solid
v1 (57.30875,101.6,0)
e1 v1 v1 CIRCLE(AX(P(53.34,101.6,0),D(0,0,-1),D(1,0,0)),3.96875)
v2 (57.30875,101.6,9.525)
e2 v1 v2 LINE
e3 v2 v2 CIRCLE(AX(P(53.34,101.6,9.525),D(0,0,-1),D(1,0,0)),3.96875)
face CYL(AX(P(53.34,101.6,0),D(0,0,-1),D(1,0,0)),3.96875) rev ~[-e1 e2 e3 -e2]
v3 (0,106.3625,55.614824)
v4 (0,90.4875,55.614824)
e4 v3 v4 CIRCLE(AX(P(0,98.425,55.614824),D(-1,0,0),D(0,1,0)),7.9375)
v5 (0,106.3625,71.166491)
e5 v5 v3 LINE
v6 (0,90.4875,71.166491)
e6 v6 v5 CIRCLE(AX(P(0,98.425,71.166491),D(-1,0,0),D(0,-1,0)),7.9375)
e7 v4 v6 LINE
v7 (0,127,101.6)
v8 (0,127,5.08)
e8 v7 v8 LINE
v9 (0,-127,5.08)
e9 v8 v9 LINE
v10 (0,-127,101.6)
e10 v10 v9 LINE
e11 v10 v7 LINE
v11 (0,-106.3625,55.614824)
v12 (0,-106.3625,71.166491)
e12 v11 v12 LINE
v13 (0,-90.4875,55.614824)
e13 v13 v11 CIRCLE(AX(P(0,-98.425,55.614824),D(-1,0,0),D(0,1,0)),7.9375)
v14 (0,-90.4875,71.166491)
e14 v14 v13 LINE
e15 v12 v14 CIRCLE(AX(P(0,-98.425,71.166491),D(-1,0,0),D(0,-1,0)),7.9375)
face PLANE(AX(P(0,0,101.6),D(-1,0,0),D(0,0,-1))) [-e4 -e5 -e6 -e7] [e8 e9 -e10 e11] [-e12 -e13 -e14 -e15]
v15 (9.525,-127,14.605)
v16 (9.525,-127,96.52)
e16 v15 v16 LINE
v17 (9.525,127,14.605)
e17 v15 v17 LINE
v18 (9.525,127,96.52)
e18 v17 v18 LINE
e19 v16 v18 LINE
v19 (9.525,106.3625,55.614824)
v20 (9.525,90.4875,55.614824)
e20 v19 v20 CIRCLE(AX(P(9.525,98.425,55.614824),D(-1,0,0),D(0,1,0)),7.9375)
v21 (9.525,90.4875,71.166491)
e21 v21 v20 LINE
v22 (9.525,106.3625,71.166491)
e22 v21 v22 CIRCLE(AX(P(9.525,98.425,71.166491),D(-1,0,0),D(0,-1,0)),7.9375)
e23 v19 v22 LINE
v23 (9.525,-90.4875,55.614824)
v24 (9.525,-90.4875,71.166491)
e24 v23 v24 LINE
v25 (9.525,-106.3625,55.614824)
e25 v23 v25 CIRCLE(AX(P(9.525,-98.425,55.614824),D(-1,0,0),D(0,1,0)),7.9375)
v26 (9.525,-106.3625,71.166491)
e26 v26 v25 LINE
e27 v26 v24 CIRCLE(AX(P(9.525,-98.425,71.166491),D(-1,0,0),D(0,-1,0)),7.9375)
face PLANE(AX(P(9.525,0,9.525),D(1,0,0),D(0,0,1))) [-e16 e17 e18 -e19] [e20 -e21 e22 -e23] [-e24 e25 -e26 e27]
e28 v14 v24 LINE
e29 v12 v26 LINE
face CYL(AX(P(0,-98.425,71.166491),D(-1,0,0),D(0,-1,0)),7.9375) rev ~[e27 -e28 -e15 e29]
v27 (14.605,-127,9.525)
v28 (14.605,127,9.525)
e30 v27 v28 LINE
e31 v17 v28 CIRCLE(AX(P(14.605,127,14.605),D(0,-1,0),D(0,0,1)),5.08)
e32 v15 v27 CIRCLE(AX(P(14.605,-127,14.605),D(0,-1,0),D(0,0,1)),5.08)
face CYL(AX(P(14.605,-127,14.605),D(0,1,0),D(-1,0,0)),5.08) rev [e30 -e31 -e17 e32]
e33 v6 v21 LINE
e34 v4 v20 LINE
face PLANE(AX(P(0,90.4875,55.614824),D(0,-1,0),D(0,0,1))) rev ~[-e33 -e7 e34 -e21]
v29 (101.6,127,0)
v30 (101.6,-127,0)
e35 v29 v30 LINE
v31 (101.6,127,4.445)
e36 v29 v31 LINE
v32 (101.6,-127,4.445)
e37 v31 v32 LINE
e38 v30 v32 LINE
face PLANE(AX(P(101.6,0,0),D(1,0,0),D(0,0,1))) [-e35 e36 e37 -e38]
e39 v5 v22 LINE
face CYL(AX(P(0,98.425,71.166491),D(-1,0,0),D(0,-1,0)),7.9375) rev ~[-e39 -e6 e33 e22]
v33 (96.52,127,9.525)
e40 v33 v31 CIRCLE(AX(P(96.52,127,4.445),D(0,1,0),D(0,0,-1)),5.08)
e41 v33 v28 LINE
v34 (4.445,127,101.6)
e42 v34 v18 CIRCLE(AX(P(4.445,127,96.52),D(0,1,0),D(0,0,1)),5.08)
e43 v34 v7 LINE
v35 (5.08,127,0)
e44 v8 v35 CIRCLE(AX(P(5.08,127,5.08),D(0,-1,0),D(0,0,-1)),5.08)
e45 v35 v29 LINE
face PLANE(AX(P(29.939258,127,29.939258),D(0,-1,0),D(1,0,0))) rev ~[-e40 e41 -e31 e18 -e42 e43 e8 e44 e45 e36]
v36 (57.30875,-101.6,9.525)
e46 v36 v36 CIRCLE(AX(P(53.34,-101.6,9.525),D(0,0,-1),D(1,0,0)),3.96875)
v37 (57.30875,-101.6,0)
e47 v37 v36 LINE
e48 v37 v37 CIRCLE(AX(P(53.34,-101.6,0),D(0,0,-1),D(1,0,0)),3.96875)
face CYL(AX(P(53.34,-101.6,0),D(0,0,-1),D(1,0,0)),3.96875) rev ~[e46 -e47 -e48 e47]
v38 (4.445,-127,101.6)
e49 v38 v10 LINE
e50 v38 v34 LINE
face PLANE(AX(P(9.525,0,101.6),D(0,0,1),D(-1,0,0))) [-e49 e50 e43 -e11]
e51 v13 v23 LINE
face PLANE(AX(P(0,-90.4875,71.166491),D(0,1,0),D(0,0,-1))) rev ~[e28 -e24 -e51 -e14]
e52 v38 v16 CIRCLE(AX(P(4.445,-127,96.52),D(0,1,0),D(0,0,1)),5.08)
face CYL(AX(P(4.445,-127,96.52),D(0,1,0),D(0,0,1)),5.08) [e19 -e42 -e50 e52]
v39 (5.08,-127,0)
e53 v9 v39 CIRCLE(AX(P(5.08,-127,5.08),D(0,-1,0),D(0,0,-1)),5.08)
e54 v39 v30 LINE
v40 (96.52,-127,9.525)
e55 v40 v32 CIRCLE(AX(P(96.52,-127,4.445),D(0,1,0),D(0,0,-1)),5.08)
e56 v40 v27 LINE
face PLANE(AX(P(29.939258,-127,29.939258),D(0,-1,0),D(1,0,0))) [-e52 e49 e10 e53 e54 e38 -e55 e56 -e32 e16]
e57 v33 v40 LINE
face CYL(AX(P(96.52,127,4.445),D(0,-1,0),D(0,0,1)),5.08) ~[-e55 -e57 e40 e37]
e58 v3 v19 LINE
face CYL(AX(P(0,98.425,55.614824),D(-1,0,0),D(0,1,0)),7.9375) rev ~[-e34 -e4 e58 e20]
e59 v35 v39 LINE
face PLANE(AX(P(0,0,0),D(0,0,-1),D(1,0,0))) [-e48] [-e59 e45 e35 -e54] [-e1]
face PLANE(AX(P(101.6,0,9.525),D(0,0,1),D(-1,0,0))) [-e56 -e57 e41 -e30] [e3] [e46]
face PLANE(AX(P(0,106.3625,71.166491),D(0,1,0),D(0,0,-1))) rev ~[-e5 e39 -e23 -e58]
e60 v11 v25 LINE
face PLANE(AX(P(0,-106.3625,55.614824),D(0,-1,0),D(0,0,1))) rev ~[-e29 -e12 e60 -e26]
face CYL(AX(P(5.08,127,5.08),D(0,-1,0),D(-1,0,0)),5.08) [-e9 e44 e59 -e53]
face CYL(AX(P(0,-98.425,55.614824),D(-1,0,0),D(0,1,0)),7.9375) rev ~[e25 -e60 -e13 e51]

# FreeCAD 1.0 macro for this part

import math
import FreeCAD as App
import Part
import Sketcher
Q = App.Units.Quantity


def edges_at(feature, points):
    """Names of the edges that pass closest to the given points."""
    edges = feature.Shape.Edges
    near = lambda p: min(range(len(edges)), key=lambda i: edges[i].distToShape(Part.Vertex(*p))[0])
    return sorted({f"Edge{near(p) + 1}" for p in points})

doc = App.newDocument("Part")
body = doc.addObject("PartDesign::Body", "Body")

# Sketch on XZ plane
sketch1 = body.newObject("Sketcher::SketchObject", "Sketch")
sketch1.AttachmentSupport = (doc.getObject("XZ_Plane"), [""])
sketch1.MapMode = "FlatFace"
sketch1.addGeometry(Part.LineSegment(App.Vector(0, 102, 0), App.Vector(0, 0, 0)), False)
sketch1.addGeometry(Part.LineSegment(App.Vector(0, 0, 0), App.Vector(102, 0, 0)), False)
sketch1.addGeometry(Part.LineSegment(App.Vector(102, 0, 0), App.Vector(102, 10, 0)), False)
sketch1.addGeometry(Part.LineSegment(App.Vector(102, 10, 0), App.Vector(10, 10, 0)), False)
sketch1.addGeometry(Part.LineSegment(App.Vector(10, 10, 0), App.Vector(10, 102, 0)), False)
sketch1.addGeometry(Part.LineSegment(App.Vector(10, 102, 0), App.Vector(0, 102, 0)), False)
sketch1.addConstraint(Sketcher.Constraint("Coincident", 0, 2, 1, 1))
sketch1.addConstraint(Sketcher.Constraint("Coincident", 1, 2, 2, 1))
sketch1.addConstraint(Sketcher.Constraint("Coincident", 2, 2, 3, 1))
sketch1.addConstraint(Sketcher.Constraint("Coincident", 3, 2, 4, 1))
sketch1.addConstraint(Sketcher.Constraint("Coincident", 4, 2, 5, 1))
sketch1.addConstraint(Sketcher.Constraint("Coincident", 5, 2, 0, 1))
sketch1.addConstraint(Sketcher.Constraint("Vertical", 0))
sketch1.addConstraint(Sketcher.Constraint("Horizontal", 1))
sketch1.addConstraint(Sketcher.Constraint("Vertical", 2))
sketch1.addConstraint(Sketcher.Constraint("Horizontal", 3))
sketch1.addConstraint(Sketcher.Constraint("Vertical", 4))
sketch1.addConstraint(Sketcher.Constraint("Horizontal", 5))
sketch1.addConstraint(Sketcher.Constraint("Coincident", 0, 2, -1, 1))
sketch1.addConstraint(Sketcher.Constraint("Equal", 1, 0))
sketch1.addConstraint(Sketcher.Constraint("Equal", 5, 2))
sketch1.addConstraint(Sketcher.Constraint("DistanceX", 1, 1, 1, 2, Q("4 in")))
sketch1.addConstraint(Sketcher.Constraint("DistanceX", 3, 2, 3, 1, Q("3.625 in")))
pad1 = body.newObject("PartDesign::Pad", "Pad")
pad1.Profile = sketch1
pad1.Length = Q("10 in")
pad1.Midplane = True
doc.recompute()

fillet = body.newObject("PartDesign::Fillet", "Fillet")
fillet.Base = (pad1, edges_at(pad1, [
    (9.525, 0, 9.525),
    (0, 0, 0),
    (9.525, 0, 101.6),
    (101.6, 0, 9.525),
]))
fillet.Radius = Q("0.2 in")

# Sketch on YZ plane
sketch2 = body.newObject("Sketcher::SketchObject", "Sketch001")
sketch2.AttachmentSupport = (doc.getObject("YZ_Plane"), [""])
sketch2.MapMode = "FlatFace"
sketch2.addGeometry(Part.LineSegment(App.Vector(90, 56, 0), App.Vector(90, 71, 0)), False)
sketch2.addGeometry(Part.ArcOfCircle(Part.Circle(App.Vector(98, 71, 0), App.Vector(0, 0, 1), 8), math.radians(0), math.radians(180)), False)
sketch2.addGeometry(Part.LineSegment(App.Vector(106, 71, 0), App.Vector(106, 56, 0)), False)
sketch2.addGeometry(Part.ArcOfCircle(Part.Circle(App.Vector(98, 56, 0), App.Vector(0, 0, 1), 8), math.radians(180), math.radians(360)), False)
sketch2.addGeometry(Part.ArcOfCircle(Part.Circle(App.Vector(-98, 56, 0), App.Vector(0, 0, 1), 8), math.radians(180), math.radians(360)), False)
sketch2.addGeometry(Part.LineSegment(App.Vector(-106, 56, 0), App.Vector(-106, 71, 0)), False)
sketch2.addGeometry(Part.ArcOfCircle(Part.Circle(App.Vector(-98, 71, 0), App.Vector(0, 0, 1), 8), math.radians(0), math.radians(180)), False)
sketch2.addGeometry(Part.LineSegment(App.Vector(-90, 71, 0), App.Vector(-90, 56, 0)), False)
sketch2.addConstraint(Sketcher.Constraint("Tangent", 0, 2, 1, 2))
sketch2.addConstraint(Sketcher.Constraint("Tangent", 1, 1, 2, 1))
sketch2.addConstraint(Sketcher.Constraint("Tangent", 2, 2, 3, 2))
sketch2.addConstraint(Sketcher.Constraint("Tangent", 3, 1, 0, 1))
sketch2.addConstraint(Sketcher.Constraint("Tangent", 4, 1, 5, 1))
sketch2.addConstraint(Sketcher.Constraint("Tangent", 5, 2, 6, 2))
sketch2.addConstraint(Sketcher.Constraint("Tangent", 6, 1, 7, 1))
sketch2.addConstraint(Sketcher.Constraint("Tangent", 7, 2, 4, 2))
sketch2.addConstraint(Sketcher.Constraint("Vertical", 0))
sketch2.addConstraint(Sketcher.Constraint("Vertical", 2))
sketch2.addConstraint(Sketcher.Constraint("Vertical", 5))
sketch2.addConstraint(Sketcher.Constraint("Vertical", 7))
sketch2.addConstraint(Sketcher.Constraint("Equal", 3, 4))
sketch2.addConstraint(Sketcher.Constraint("Symmetric", 3, 3, 4, 3, -2))
sketch2.addConstraint(Sketcher.Constraint("Horizontal", 1, 3, 6, 3))
sketch2.addConstraint(Sketcher.Constraint("Radius", 1, Q("0.3125 in")))
sketch2.addConstraint(Sketcher.Constraint("DistanceX", 4, 3, 3, 3, Q("7.75 in")))
sketch2.addConstraint(Sketcher.Constraint("DistanceY", 0, 1, 0, 2, 15.551667))
sketch2.addConstraint(Sketcher.Constraint("DistanceY", -1, 1, 1, 3, 71.166491))
pocket1 = body.newObject("PartDesign::Pocket", "Pocket")
pocket1.Profile = sketch2
pocket1.Length = Q("1 in")
pocket1.Reversed = True

# Sketch on XY plane
sketch3 = body.newObject("Sketcher::SketchObject", "Sketch002")
sketch3.AttachmentSupport = (doc.getObject("XY_Plane"), [""])
sketch3.MapMode = "FlatFace"
sketch3.addGeometry(Part.Circle(App.Vector(53.3, -101.6, 0), App.Vector(0, 0, 1), 4), False)
sketch3.addGeometry(Part.Circle(App.Vector(53.3, 101.6, 0), App.Vector(0, 0, 1), 4), False)
sketch3.addConstraint(Sketcher.Constraint("Equal", 0, 1))
sketch3.addConstraint(Sketcher.Constraint("Symmetric", 0, 3, 1, 3, -1))
sketch3.addConstraint(Sketcher.Constraint("Diameter", 0, Q("0.3125 in")))
sketch3.addConstraint(Sketcher.Constraint("DistanceY", 0, 3, -1, 1, Q("4 in")))
sketch3.addConstraint(Sketcher.Constraint("DistanceX", -1, 1, 0, 3, Q("2.1 in")))
pocket2 = body.newObject("PartDesign::Pocket", "Pocket001")
pocket2.Profile = sketch3
pocket2.Length = Q("1 in")
pocket2.Reversed = True

doc.recompute()
